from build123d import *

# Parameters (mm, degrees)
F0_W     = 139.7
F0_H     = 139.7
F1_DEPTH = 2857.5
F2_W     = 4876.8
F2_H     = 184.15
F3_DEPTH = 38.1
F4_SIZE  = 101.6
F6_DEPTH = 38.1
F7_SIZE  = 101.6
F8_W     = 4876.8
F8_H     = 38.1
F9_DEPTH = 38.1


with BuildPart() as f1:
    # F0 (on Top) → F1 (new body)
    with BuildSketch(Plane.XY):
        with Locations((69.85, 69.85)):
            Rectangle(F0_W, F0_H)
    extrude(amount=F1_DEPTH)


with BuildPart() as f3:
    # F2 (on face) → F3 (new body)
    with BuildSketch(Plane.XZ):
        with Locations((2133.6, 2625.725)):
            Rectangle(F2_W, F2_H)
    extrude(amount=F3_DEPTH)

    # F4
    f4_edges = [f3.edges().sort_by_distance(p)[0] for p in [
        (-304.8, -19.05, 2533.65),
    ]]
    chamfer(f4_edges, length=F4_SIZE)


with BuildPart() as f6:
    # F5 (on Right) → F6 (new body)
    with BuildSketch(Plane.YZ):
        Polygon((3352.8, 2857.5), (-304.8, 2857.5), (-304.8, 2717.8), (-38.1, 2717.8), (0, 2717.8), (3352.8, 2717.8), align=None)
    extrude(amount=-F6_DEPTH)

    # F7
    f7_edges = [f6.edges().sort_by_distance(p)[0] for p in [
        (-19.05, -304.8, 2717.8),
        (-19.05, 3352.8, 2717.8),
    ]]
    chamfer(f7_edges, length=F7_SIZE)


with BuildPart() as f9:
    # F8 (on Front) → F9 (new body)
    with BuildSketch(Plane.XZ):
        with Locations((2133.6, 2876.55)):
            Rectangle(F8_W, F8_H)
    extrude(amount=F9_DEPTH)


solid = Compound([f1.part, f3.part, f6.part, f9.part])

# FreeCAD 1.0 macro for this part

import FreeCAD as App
import Part
import Sketcher
from FreeCAD import Vector
Q = App.Units.Quantity


def edges_at(feature, points):
    """Names of the edges that pass closest to the given points."""
    edges = feature.Shape.Edges
    near = lambda p: min(range(len(edges)), key=lambda i: edges[i].distToShape(Part.Vertex(*p))[0])
    return sorted({f"Edge{near(p) + 1}" for p in points})


def add_polygon(sketch, points):
    """Adds a closed chain of lines whose ends are joined by coincident constraints."""
    first, n = sketch.GeometryCount, len(points)
    for a, b in zip(points, points[1:] + points[:1]):
        sketch.addGeometry(Part.LineSegment(App.Vector(*a, 0), App.Vector(*b, 0)), False)
    for i in range(n):
        sketch.addConstraint(Sketcher.Constraint("Coincident", first + i, 2, first + (i + 1) % n, 1))

doc = App.newDocument("Part")
params = doc.addObject("Spreadsheet::Sheet", "Params")
for row, (alias, value) in enumerate([
    ("sketch1_width", "5.5 in"),
    ("pad1_length", "112.5 in"),
    ("sketch2_width", "192 in"),
    ("sketch2_height", "7.25 in"),
    ("pad2_length", "1.5 in"),
    ("chamfer_size", "4 in"),
    ("sketch3_width", "144 in"),
    ("sketch3_height", "5.5 in"),
    ("pad3_length", "1.5 in"),
    ("chamfer2_size", "4 in"),
    ("sketch4_width", "192 in"),
    ("sketch4_height", "1.5 in"),
    ("pad4_length", "1.5 in"),
], start=1):
    params.set(f"A{row}", alias)
    params.set(f"B{row}", "=" + value)
    params.setAlias(f"B{row}", alias)

body = doc.addObject("PartDesign::Body", "Body")

# Sketch on XY plane
sketch1 = body.newObject("Sketcher::SketchObject", "Sketch")
sketch1.AttachmentSupport = (doc.getObject("XY_Plane"), [""])
sketch1.MapMode = "FlatFace"
add_polygon(sketch1, [(0, 140), (0, 0), (140, 0), (140, 140)])  # lines 0-3
sketch1.addConstraint(Sketcher.Constraint("Vertical", 0))
sketch1.addConstraint(Sketcher.Constraint("Horizontal", 1))
sketch1.addConstraint(Sketcher.Constraint("Vertical", 2))
sketch1.addConstraint(Sketcher.Constraint("Horizontal", 3))
sketch1.addConstraint(Sketcher.Constraint("Coincident", 0, 2, -1, 1))
sketch1.addConstraint(Sketcher.Constraint("Equal", 3, 0))
sketch1.addConstraint(Sketcher.Constraint("DistanceX", 1, 1, 1, 2, Q("5.5 in")))
sketch1.setExpression("Constraints[10]", "Params.sketch1_width")
pad1 = body.newObject("PartDesign::Pad", "Pad")
pad1.Profile = sketch1
pad1.setExpression("Length", "Params.pad1_length")
body2 = doc.addObject("PartDesign::Body", "Body001")

# Sketch on XZ plane
sketch2 = body2.newObject("Sketcher::SketchObject", "Sketch001")
sketch2.AttachmentSupport = (doc.getObject("XZ_Plane001"), [""])
sketch2.MapMode = "FlatFace"
add_polygon(sketch2, [(-305, 2718), (-305, 2534), (4572, 2534), (4572, 2718)])  # lines 0-3
sketch2.addConstraint(Sketcher.Constraint("Vertical", 0))
sketch2.addConstraint(Sketcher.Constraint("Horizontal", 1))
sketch2.addConstraint(Sketcher.Constraint("Vertical", 2))
sketch2.addConstraint(Sketcher.Constraint("Horizontal", 3))
sketch2.addConstraint(Sketcher.Constraint("DistanceX", 1, 1, 1, 2, Q("192 in")))
sketch2.addConstraint(Sketcher.Constraint("DistanceX", 0, 2, -1, 1, Q("12 in")))
sketch2.addConstraint(Sketcher.Constraint("DistanceY", -1, 1, 2, 2, Q("107 in")))
sketch2.addConstraint(Sketcher.Constraint("DistanceY", 0, 2, 0, 1, Q("7.25 in")))
sketch2.setExpression("Constraints[8]", "Params.sketch2_width")
sketch2.setExpression("Constraints[11]", "Params.sketch2_height")
pad2 = body2.newObject("PartDesign::Pad", "Pad001")
pad2.Profile = sketch2
pad2.setExpression("Length", "Params.pad2_length")
doc.recompute()

chamfer = body2.newObject("PartDesign::Chamfer", "Chamfer")
chamfer.Base = (pad2, edges_at(pad2, [(-304.8, -19.05, 2533.65)]))
chamfer.setExpression("Size", "Params.chamfer_size")
body3 = doc.addObject("PartDesign::Body", "Body002")

# Sketch on YZ plane
sketch3 = body3.newObject("Sketcher::SketchObject", "Sketch002")
sketch3.AttachmentSupport = (doc.getObject("YZ_Plane002"), [""])
sketch3.MapMode = "FlatFace"
add_polygon(sketch3, [(3353, 2858), (-305, 2858), (-305, 2718), (3353, 2718)])  # lines 0-3
sketch3.addConstraint(Sketcher.Constraint("Horizontal", 0))
sketch3.addConstraint(Sketcher.Constraint("Vertical", 1))
sketch3.addConstraint(Sketcher.Constraint("Horizontal", 2))
sketch3.addConstraint(Sketcher.Constraint("Vertical", 3))
sketch3.addConstraint(Sketcher.Constraint("DistanceX", 0, 2, 0, 1, Q("144 in")))
sketch3.addConstraint(Sketcher.Constraint("DistanceY", 1, 2, 1, 1, Q("5.5 in")))
sketch3.addConstraint(Sketcher.Constraint("DistanceX", 0, 2, -1, 1, Q("12 in")))
sketch3.addConstraint(Sketcher.Constraint("DistanceY", -1, 1, 1, 2, Q("107 in")))
sketch3.setExpression("Constraints[8]", "Params.sketch3_width")
sketch3.setExpression("Constraints[9]", "Params.sketch3_height")
pad3 = body3.newObject("PartDesign::Pad", "Pad002")
pad3.Profile = sketch3
pad3.setExpression("Length", "Params.pad3_length")
pad3.Reversed = True
doc.recompute()

chamfer2 = body3.newObject("PartDesign::Chamfer", "Chamfer001")
chamfer2.Base = (pad3, edges_at(pad3, [(-19.05, -304.8, 2717.8), (-19.05, 3352.8, 2717.8)]))
chamfer2.setExpression("Size", "Params.chamfer2_size")
body4 = doc.addObject("PartDesign::Body", "Body003")

# Sketch on XZ plane
sketch4 = body4.newObject("Sketcher::SketchObject", "Sketch003")
sketch4.AttachmentSupport = (doc.getObject("XZ_Plane003"), [""])
sketch4.MapMode = "FlatFace"
add_polygon(sketch4, [(-305, 2896), (-305, 2858), (4572, 2858), (4572, 2896)])  # lines 0-3
sketch4.addConstraint(Sketcher.Constraint("Vertical", 0))
sketch4.addConstraint(Sketcher.Constraint("Horizontal", 1))
sketch4.addConstraint(Sketcher.Constraint("Vertical", 2))
sketch4.addConstraint(Sketcher.Constraint("Horizontal", 3))
sketch4.addConstraint(Sketcher.Constraint("DistanceX", 1, 1, 1, 2, Q("192 in")))
sketch4.addConstraint(Sketcher.Constraint("DistanceY", 0, 2, 0, 1, Q("1.5 in")))
sketch4.addConstraint(Sketcher.Constraint("DistanceX", 0, 2, -1, 1, Q("12 in")))
sketch4.addConstraint(Sketcher.Constraint("DistanceY", -1, 1, 2, 2, Q("114 in")))
sketch4.setExpression("Constraints[8]", "Params.sketch4_width")
sketch4.setExpression("Constraints[9]", "Params.sketch4_height")
pad4 = body4.newObject("PartDesign::Pad", "Pad003")
pad4.Profile = sketch4
pad4.setExpression("Length", "Params.pad4_length")

doc.recompute()
